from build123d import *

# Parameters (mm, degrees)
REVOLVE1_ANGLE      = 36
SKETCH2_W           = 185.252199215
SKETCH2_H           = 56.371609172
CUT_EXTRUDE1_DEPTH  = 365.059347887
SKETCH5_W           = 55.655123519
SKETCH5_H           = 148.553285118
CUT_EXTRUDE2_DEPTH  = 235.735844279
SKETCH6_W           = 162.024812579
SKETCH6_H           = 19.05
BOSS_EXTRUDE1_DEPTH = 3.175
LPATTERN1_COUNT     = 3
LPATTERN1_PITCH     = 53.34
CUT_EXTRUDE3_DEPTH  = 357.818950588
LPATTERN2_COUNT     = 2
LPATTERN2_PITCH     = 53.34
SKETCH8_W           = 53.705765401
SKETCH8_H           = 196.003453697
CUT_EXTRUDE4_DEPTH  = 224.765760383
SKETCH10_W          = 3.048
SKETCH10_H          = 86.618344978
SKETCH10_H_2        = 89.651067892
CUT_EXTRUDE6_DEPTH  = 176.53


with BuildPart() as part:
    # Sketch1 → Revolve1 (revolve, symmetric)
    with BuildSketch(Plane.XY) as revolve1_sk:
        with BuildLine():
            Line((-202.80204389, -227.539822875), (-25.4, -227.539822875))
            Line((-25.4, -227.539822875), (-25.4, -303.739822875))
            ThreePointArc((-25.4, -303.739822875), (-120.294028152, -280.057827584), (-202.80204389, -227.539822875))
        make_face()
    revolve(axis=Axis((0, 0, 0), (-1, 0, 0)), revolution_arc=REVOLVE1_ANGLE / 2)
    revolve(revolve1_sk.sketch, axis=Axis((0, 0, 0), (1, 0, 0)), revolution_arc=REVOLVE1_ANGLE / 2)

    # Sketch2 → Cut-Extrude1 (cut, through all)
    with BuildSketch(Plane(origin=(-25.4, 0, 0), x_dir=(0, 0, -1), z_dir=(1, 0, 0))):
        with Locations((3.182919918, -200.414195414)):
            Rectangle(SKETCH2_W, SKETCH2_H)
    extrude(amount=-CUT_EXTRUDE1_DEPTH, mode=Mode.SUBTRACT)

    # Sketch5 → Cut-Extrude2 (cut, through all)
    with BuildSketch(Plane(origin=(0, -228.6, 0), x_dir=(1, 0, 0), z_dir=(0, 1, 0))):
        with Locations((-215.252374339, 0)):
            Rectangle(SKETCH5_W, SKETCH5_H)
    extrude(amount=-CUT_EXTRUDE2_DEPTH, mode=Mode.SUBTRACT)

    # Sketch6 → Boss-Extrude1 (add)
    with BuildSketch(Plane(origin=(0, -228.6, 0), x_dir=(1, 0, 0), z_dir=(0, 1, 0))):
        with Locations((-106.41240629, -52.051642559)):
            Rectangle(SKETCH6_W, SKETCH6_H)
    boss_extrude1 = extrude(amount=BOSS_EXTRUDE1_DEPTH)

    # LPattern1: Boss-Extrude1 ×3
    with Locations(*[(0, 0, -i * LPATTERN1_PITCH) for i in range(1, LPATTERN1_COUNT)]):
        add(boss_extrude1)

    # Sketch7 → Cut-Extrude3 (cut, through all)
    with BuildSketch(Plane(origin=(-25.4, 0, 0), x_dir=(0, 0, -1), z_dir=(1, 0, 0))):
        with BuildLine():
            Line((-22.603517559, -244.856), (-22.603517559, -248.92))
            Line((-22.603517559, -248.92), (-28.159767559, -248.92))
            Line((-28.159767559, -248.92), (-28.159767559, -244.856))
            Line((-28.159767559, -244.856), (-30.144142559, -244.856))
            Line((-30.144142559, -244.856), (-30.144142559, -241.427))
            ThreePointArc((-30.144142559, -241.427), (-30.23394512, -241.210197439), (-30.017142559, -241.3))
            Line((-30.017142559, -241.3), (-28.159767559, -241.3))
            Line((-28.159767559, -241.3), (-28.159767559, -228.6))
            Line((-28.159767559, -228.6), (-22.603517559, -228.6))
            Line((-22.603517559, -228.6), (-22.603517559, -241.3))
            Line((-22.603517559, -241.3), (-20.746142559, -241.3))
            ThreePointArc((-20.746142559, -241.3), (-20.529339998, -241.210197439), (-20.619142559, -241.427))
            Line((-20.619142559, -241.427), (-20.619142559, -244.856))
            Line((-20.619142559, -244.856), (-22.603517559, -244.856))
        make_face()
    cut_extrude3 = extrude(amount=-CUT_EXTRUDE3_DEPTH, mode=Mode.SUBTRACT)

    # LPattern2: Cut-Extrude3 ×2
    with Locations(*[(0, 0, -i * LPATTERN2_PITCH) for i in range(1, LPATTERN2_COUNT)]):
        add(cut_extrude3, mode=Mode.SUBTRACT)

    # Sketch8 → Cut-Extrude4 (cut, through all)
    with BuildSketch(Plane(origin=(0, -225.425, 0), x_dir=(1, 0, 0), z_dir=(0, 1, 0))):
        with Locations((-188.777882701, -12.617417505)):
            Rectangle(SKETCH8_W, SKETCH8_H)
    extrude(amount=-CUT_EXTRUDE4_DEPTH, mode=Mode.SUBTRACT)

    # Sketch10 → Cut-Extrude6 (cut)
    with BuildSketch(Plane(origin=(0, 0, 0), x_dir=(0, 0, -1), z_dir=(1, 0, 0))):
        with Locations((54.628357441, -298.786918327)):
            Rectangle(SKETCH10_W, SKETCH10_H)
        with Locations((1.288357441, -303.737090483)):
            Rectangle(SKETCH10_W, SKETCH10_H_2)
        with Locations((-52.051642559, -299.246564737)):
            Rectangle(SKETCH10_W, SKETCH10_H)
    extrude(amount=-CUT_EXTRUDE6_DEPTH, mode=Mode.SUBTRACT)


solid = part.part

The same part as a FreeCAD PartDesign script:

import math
import FreeCAD as App
import Part
import Sketcher
Q = App.Units.Quantity

doc = App.newDocument("Part")
body = doc.addObject("PartDesign::Body", "Body")

sketch1 = body.newObject("Sketcher::SketchObject", "Sketch")
sketch1.AttachmentSupport = (doc.getObject("XY_Plane"), [""])
sketch1.MapMode = "FlatFace"
sketch1.addGeometry([
    Part.LineSegment(App.Vector(-25, -228, 0), App.Vector(-203, -228, 0)),
    Part.ArcOfCircle(Part.Circle(App.Vector(0, 0, 0), App.Vector(0, 0, 1), 305), math.radians(-132), math.radians(-95)),
    Part.LineSegment(App.Vector(-25, -304, 0), App.Vector(-25, -228, 0)),
], False)
sketch1.addConstraint([
    Sketcher.Constraint("Coincident", 0, 2, 1, 1),
    Sketcher.Constraint("Coincident", 1, 2, 2, 1),
    Sketcher.Constraint("Coincident", 2, 2, 0, 1),
    Sketcher.Constraint("Horizontal", 0),
    Sketcher.Constraint("Vertical", 2),
    Sketcher.Constraint("Coincident", 1, 3, -1, 1),
    Sketcher.Constraint("Radius", 1, Q("12 in")),
    Sketcher.Constraint("DistanceY", 2, 1, 2, 2, Q("3 in")),
    Sketcher.Constraint("DistanceX", 2, 2, -1, 1, Q("1 in")),
])
revolution = body.newObject("PartDesign::Revolution", "Revolution")
revolution.Profile = sketch1
revolution.ReferenceAxis = (sketch1, ["H_Axis"])
revolution.Angle = 18
revolution.Reversed = True

sketch2 = body.newObject("Sketcher::SketchObject", "Sketch001")
sketch2.AttachmentSupport = (doc.getObject("XY_Plane"), [""])
sketch2.MapMode = "FlatFace"
sketch2.addGeometry([
    Part.LineSegment(App.Vector(-25, -228, 0), App.Vector(-203, -228, 0)),
    Part.ArcOfCircle(Part.Circle(App.Vector(0, 0, 0), App.Vector(0, 0, 1), 305), math.radians(-132), math.radians(-95)),
    Part.LineSegment(App.Vector(-25, -304, 0), App.Vector(-25, -228, 0)),
], False)
sketch2.addConstraint([
    Sketcher.Constraint("Coincident", 0, 2, 1, 1),
    Sketcher.Constraint("Coincident", 1, 2, 2, 1),
    Sketcher.Constraint("Coincident", 2, 2, 0, 1),
    Sketcher.Constraint("Horizontal", 0),
    Sketcher.Constraint("Vertical", 2),
    Sketcher.Constraint("Coincident", 1, 3, -1, 1),
    Sketcher.Constraint("Radius", 1, Q("12 in")),
    Sketcher.Constraint("DistanceY", 2, 1, 2, 2, Q("3 in")),
    Sketcher.Constraint("DistanceX", 2, 2, -1, 1, Q("1 in")),
])
revolution2 = body.newObject("PartDesign::Revolution", "Revolution001")
revolution2.Profile = sketch2
revolution2.ReferenceAxis = (sketch2, ["H_Axis"])
revolution2.Angle = 18

sketch3 = body.newObject("Sketcher::SketchObject", "Sketch002")
sketch3.AttachmentSupport = (doc.getObject("YZ_Plane"), [""])
sketch3.MapMode = "FlatFace"
sketch3.AttachmentOffset = App.Placement(App.Vector(0, 0, -1 * 25.4), App.Rotation())
sketch3.addGeometry([
    Part.LineSegment(App.Vector(-172, 89, 0), App.Vector(-229, 89, 0)),
    Part.LineSegment(App.Vector(-229, 89, 0), App.Vector(-229, -96, 0)),
    Part.LineSegment(App.Vector(-229, -96, 0), App.Vector(-172, -96, 0)),
    Part.LineSegment(App.Vector(-172, -96, 0), App.Vector(-172, 89, 0)),
], False)
sketch3.addConstraint([
    Sketcher.Constraint("Coincident", 0, 2, 1, 1),
    Sketcher.Constraint("Coincident", 1, 2, 2, 1),
    Sketcher.Constraint("Coincident", 2, 2, 3, 1),
    Sketcher.Constraint("Coincident", 3, 2, 0, 1),
    Sketcher.Constraint("Horizontal", 0),
    Sketcher.Constraint("Vertical", 1),
    Sketcher.Constraint("Horizontal", 2),
    Sketcher.Constraint("Vertical", 3),
    Sketcher.Constraint("DistanceX", 0, 2, -1, 1, Q("9 in")),
    Sketcher.Constraint("DistanceY", 1, 2, 1, 1, Q("185.252199 mm")),
    Sketcher.Constraint("DistanceX", 0, 2, 0, 1, Q("56.371609 mm")),
    Sketcher.Constraint("DistanceY", -1, 1, 0, 2, Q("89.44318 mm")),
])
pocket1 = body.newObject("PartDesign::Pocket", "Pocket")
pocket1.Profile = sketch3
pocket1.Type = "ThroughAll"

sketch4 = body.newObject("Sketcher::SketchObject", "Sketch003")
sketch4.AttachmentSupport = (doc.getObject("XZ_Plane"), [""])
sketch4.MapMode = "FlatFace"
sketch4.AttachmentOffset = App.Placement(App.Vector(0, 0, 9 * 25.4), App.Rotation())
sketch4.addGeometry([
    Part.LineSegment(App.Vector(-243, -74, 0), App.Vector(-243, 74, 0)),
    Part.LineSegment(App.Vector(-243, 74, 0), App.Vector(-187, 74, 0)),
    Part.LineSegment(App.Vector(-187, 74, 0), App.Vector(-187, -74, 0)),
    Part.LineSegment(App.Vector(-187, -74, 0), App.Vector(-243, -74, 0)),
], False)
sketch4.addConstraint([
    Sketcher.Constraint("Coincident", 0, 2, 1, 1),
    Sketcher.Constraint("Coincident", 1, 2, 2, 1),
    Sketcher.Constraint("Coincident", 2, 2, 3, 1),
    Sketcher.Constraint("Coincident", 3, 2, 0, 1),
    Sketcher.Constraint("Vertical", 0),
    Sketcher.Constraint("Horizontal", 1),
    Sketcher.Constraint("Vertical", 2),
    Sketcher.Constraint("Horizontal", 3),
    Sketcher.Constraint("DistanceX", 1, 1, 1, 2, Q("55.655124 mm")),
    Sketcher.Constraint("DistanceY", 0, 1, 0, 2, Q("148.553285 mm")),
    Sketcher.Constraint("DistanceX", 0, 2, -1, 1, Q("243.079936 mm")),
    Sketcher.Constraint("DistanceY", -1, 1, 0, 2, Q("74.276643 mm")),
])
pocket2 = body.newObject("PartDesign::Pocket", "Pocket001")
pocket2.Profile = sketch4
pocket2.Type = "ThroughAll"
pocket2.Reversed = True

sketch5 = body.newObject("Sketcher::SketchObject", "Sketch004")
sketch5.AttachmentSupport = (doc.getObject("XZ_Plane"), [""])
sketch5.MapMode = "FlatFace"
sketch5.AttachmentOffset = App.Placement(App.Vector(0, 0, 9 * 25.4), App.Rotation())
sketch5.addGeometry([
    Part.LineSegment(App.Vector(-187, 43, 0), App.Vector(-187, 62, 0)),
    Part.LineSegment(App.Vector(-187, 62, 0), App.Vector(-25, 62, 0)),
    Part.LineSegment(App.Vector(-25, 62, 0), App.Vector(-25, 43, 0)),
    Part.LineSegment(App.Vector(-25, 43, 0), App.Vector(-187, 43, 0)),
], False)
sketch5.addConstraint([
    Sketcher.Constraint("Coincident", 0, 2, 1, 1),
    Sketcher.Constraint("Coincident", 1, 2, 2, 1),
    Sketcher.Constraint("Coincident", 2, 2, 3, 1),
    Sketcher.Constraint("Coincident", 3, 2, 0, 1),
    Sketcher.Constraint("Vertical", 0),
    Sketcher.Constraint("Horizontal", 1),
    Sketcher.Constraint("Vertical", 2),
    Sketcher.Constraint("Horizontal", 3),
    Sketcher.Constraint("DistanceX", 1, 2, -1, 1, Q("1 in")),
    Sketcher.Constraint("DistanceY", 0, 1, 0, 2, Q("0.75 in")),
    Sketcher.Constraint("DistanceX", 1, 1, 1, 2, Q("162.024813 mm")),
    Sketcher.Constraint("DistanceY", -1, 1, 0, 2, Q("61.576643 mm")),
])
pad1 = body.newObject("PartDesign::Pad", "Pad")
pad1.Profile = sketch5
pad1.Length = Q("0.125 in")
pad1.Reversed = True
doc.recompute()

linearpattern = body.newObject("PartDesign::LinearPattern", "LinearPattern")
linearpattern.Originals = [pad1]
linearpattern.Direction = (doc.getObject("Z_Axis"), [""])
linearpattern.Mode = "offset"
linearpattern.Offset = Q("2.1 in")
linearpattern.Occurrences = 3
linearpattern.Reversed = True
body.Tip = linearpattern

sketch6 = body.newObject("Sketcher::SketchObject", "Sketch005")
sketch6.AttachmentSupport = (doc.getObject("YZ_Plane"), [""])
sketch6.MapMode = "FlatFace"
sketch6.AttachmentOffset = App.Placement(App.Vector(0, 0, -1 * 25.4), App.Rotation())
sketch6.addGeometry([
    Part.LineSegment(App.Vector(-248.92, 22.6, 0), App.Vector(-244.86, 22.6, 0)),
    Part.LineSegment(App.Vector(-244.86, 22.6, 0), App.Vector(-244.86, 20.62, 0)),
    Part.LineSegment(App.Vector(-244.86, 20.62, 0), App.Vector(-241.43, 20.62, 0)),
    Part.ArcOfCircle(Part.Circle(App.Vector(-241.3, 20.62, 0), App.Vector(0, 0, 1), 0.13), math.radians(180), math.radians(450)),
    Part.LineSegment(App.Vector(-241.3, 20.75, 0), App.Vector(-241.3, 22.6, 0)),
    Part.LineSegment(App.Vector(-241.3, 22.6, 0), App.Vector(-228.6, 22.6, 0)),
    Part.LineSegment(App.Vector(-228.6, 22.6, 0), App.Vector(-228.6, 28.16, 0)),
    Part.LineSegment(App.Vector(-228.6, 28.16, 0), App.Vector(-241.3, 28.16, 0)),
    Part.LineSegment(App.Vector(-241.3, 28.16, 0), App.Vector(-241.3, 30.02, 0)),
    Part.ArcOfCircle(Part.Circle(App.Vector(-241.3, 30.14, 0), App.Vector(0, 0, 1), 0.13), math.radians(-90), math.radians(180)),
    Part.LineSegment(App.Vector(-241.43, 30.14, 0), App.Vector(-244.86, 30.14, 0)),
    Part.LineSegment(App.Vector(-244.86, 30.14, 0), App.Vector(-244.86, 28.16, 0)),
    Part.LineSegment(App.Vector(-244.86, 28.16, 0), App.Vector(-248.92, 28.16, 0)),
    Part.LineSegment(App.Vector(-248.92, 28.16, 0), App.Vector(-248.92, 22.6, 0)),
], False)
sketch6.addConstraint([
    Sketcher.Constraint("Coincident", 0, 2, 1, 1),
    Sketcher.Constraint("Coincident", 1, 2, 2, 1),
    Sketcher.Constraint("Coincident", 2, 2, 3, 1),
    Sketcher.Constraint("Coincident", 3, 2, 4, 1),
    Sketcher.Constraint("Coincident", 4, 2, 5, 1),
    Sketcher.Constraint("Coincident", 5, 2, 6, 1),
    Sketcher.Constraint("Coincident", 6, 2, 7, 1),
    Sketcher.Constraint("Coincident", 7, 2, 8, 1),
    Sketcher.Constraint("Coincident", 8, 2, 9, 1),
    Sketcher.Constraint("Coincident", 9, 2, 10, 1),
    Sketcher.Constraint("Coincident", 10, 2, 11, 1),
    Sketcher.Constraint("Coincident", 11, 2, 12, 1),
    Sketcher.Constraint("Coincident", 12, 2, 13, 1),
    Sketcher.Constraint("Coincident", 13, 2, 0, 1),
    Sketcher.Constraint("Horizontal", 0),
    Sketcher.Constraint("Vertical", 1),
    Sketcher.Constraint("Horizontal", 2),
    Sketcher.Constraint("Vertical", 4),
    Sketcher.Constraint("Horizontal", 5),
    Sketcher.Constraint("Vertical", 6),
    Sketcher.Constraint("Horizontal", 7),
    Sketcher.Constraint("Vertical", 8),
    Sketcher.Constraint("Horizontal", 10),
    Sketcher.Constraint("Vertical", 11),
    Sketcher.Constraint("Horizontal", 12),
    Sketcher.Constraint("Vertical", 13),
    Sketcher.Constraint("Equal", 3, 9),
    Sketcher.Constraint("Horizontal", 3, 3, 1, 2),
    Sketcher.Constraint("Horizontal", 0, 2, 4, 2),
    Sketcher.Constraint("Horizontal", 7, 2, 11, 2),
    Sketcher.Constraint("Vertical", 3, 3, 9, 3),
    Sketcher.Constraint("Vertical", 9, 3, 3, 2),
    Sketcher.Constraint("Vertical", 4, 2, 7, 2),
    Sketcher.Constraint("Vertical", 1, 2, 10, 2),
    Sketcher.Constraint("Equal", 4, 8),
    Sketcher.Constraint("Equal", 1, 11),
    Sketcher.Constraint("DistanceX", 5, 1, 5, 2, Q("0.5 in")),
    Sketcher.Constraint("DistanceX", 5, 2, -1, 1, Q("9 in")),
    Sketcher.Constraint("Radius", 3, Q("0.005 in")),
    Sketcher.Constraint("DistanceX", 0, 1, 0, 2, Q("0.16 in")),
    Sketcher.Constraint("DistanceX", 12, 2, -1, 1, Q("9.8 in")),
    Sketcher.Constraint("DistanceY", 1, 2, 1, 1, Q("0.078125 in")),
    Sketcher.Constraint("DistanceY", 6, 1, 6, 2, Q("0.21875 in")),
    Sketcher.Constraint("DistanceY", -1, 1, 3, 3, Q("20.619143 mm")),
])
pocket3 = body.newObject("PartDesign::Pocket", "Pocket002")
pocket3.Profile = sketch6
pocket3.Type = "ThroughAll"
doc.recompute()

linearpattern2 = body.newObject("PartDesign::LinearPattern", "LinearPattern001")
linearpattern2.Originals = [pocket3]
linearpattern2.Direction = (doc.getObject("Z_Axis"), [""])
linearpattern2.Mode = "offset"
linearpattern2.Offset = Q("2.1 in")
linearpattern2.Occurrences = 2
linearpattern2.Reversed = True
body.Tip = linearpattern2

sketch7 = body.newObject("Sketcher::SketchObject", "Sketch006")
sketch7.AttachmentSupport = (doc.getObject("XZ_Plane"), [""])
sketch7.MapMode = "FlatFace"
sketch7.AttachmentOffset = App.Placement(App.Vector(0, 0, 8.875 * 25.4), App.Rotation())
sketch7.addGeometry([
    Part.LineSegment(App.Vector(-216, -85, 0), App.Vector(-216, 111, 0)),
    Part.LineSegment(App.Vector(-216, 111, 0), App.Vector(-162, 111, 0)),
    Part.LineSegment(App.Vector(-162, 111, 0), App.Vector(-162, -85, 0)),
    Part.LineSegment(App.Vector(-162, -85, 0), App.Vector(-216, -85, 0)),
], False)
sketch7.addConstraint([
    Sketcher.Constraint("Coincident", 0, 2, 1, 1),
    Sketcher.Constraint("Coincident", 1, 2, 2, 1),
    Sketcher.Constraint("Coincident", 2, 2, 3, 1),
    Sketcher.Constraint("Coincident", 3, 2, 0, 1),
    Sketcher.Constraint("Vertical", 0),
    Sketcher.Constraint("Horizontal", 1),
    Sketcher.Constraint("Vertical", 2),
    Sketcher.Constraint("Horizontal", 3),
    Sketcher.Constraint("DistanceX", 1, 2, -1, 1, Q("6.375 in")),
    Sketcher.Constraint("DistanceX", 1, 1, 1, 2, Q("53.705765 mm")),
    Sketcher.Constraint("DistanceY", 0, 1, 0, 2, Q("196.003454 mm")),
    Sketcher.Constraint("DistanceY", 2, 2, -1, 1, Q("85.384309 mm")),
])
pocket4 = body.newObject("PartDesign::Pocket", "Pocket003")
pocket4.Profile = sketch7
pocket4.Type = "ThroughAll"
pocket4.Reversed = True

sketch8 = body.newObject("Sketcher::SketchObject", "Sketch007")
sketch8.AttachmentSupport = (doc.getObject("YZ_Plane"), [""])
sketch8.MapMode = "FlatFace"
sketch8.addGeometry([
    Part.LineSegment(App.Vector(-255.5, -53.1, 0), App.Vector(-342.1, -53.1, 0)),
    Part.LineSegment(App.Vector(-342.1, -53.1, 0), App.Vector(-342.1, -56.2, 0)),
    Part.LineSegment(App.Vector(-342.1, -56.2, 0), App.Vector(-255.5, -56.2, 0)),
    Part.LineSegment(App.Vector(-255.5, -56.2, 0), App.Vector(-255.5, -53.1, 0)),
    Part.LineSegment(App.Vector(-258.9, 0.2, 0), App.Vector(-348.6, 0.2, 0)),
    Part.LineSegment(App.Vector(-348.6, 0.2, 0), App.Vector(-348.6, -2.8, 0)),
    Part.LineSegment(App.Vector(-348.6, -2.8, 0), App.Vector(-258.9, -2.8, 0)),
    Part.LineSegment(App.Vector(-258.9, -2.8, 0), App.Vector(-258.9, 0.2, 0)),
    Part.LineSegment(App.Vector(-255.9, 53.6, 0), App.Vector(-342.6, 53.6, 0)),
    Part.LineSegment(App.Vector(-342.6, 53.6, 0), App.Vector(-342.6, 50.5, 0)),
    Part.LineSegment(App.Vector(-342.6, 50.5, 0), App.Vector(-255.9, 50.5, 0)),
    Part.LineSegment(App.Vector(-255.9, 50.5, 0), App.Vector(-255.9, 53.6, 0)),
], False)
sketch8.addConstraint([
    Sketcher.Constraint("Coincident", 0, 2, 1, 1),
    Sketcher.Constraint("Coincident", 1, 2, 2, 1),
    Sketcher.Constraint("Coincident", 2, 2, 3, 1),
    Sketcher.Constraint("Coincident", 3, 2, 0, 1),
    Sketcher.Constraint("Coincident", 4, 2, 5, 1),
    Sketcher.Constraint("Coincident", 5, 2, 6, 1),
    Sketcher.Constraint("Coincident", 6, 2, 7, 1),
    Sketcher.Constraint("Coincident", 7, 2, 4, 1),
    Sketcher.Constraint("Coincident", 8, 2, 9, 1),
    Sketcher.Constraint("Coincident", 9, 2, 10, 1),
    Sketcher.Constraint("Coincident", 10, 2, 11, 1),
    Sketcher.Constraint("Coincident", 11, 2, 8, 1),
    Sketcher.Constraint("Horizontal", 0),
    Sketcher.Constraint("Vertical", 1),
    Sketcher.Constraint("Horizontal", 2),
    Sketcher.Constraint("Vertical", 3),
    Sketcher.Constraint("Horizontal", 4),
    Sketcher.Constraint("Vertical", 5),
    Sketcher.Constraint("Horizontal", 6),
    Sketcher.Constraint("Vertical", 7),
    Sketcher.Constraint("Horizontal", 8),
    Sketcher.Constraint("Vertical", 9),
    Sketcher.Constraint("Horizontal", 10),
    Sketcher.Constraint("Vertical", 11),
    Sketcher.Constraint("Equal", 2, 8),
    Sketcher.Constraint("Equal", 3, 5),
    Sketcher.Constraint("Equal", 7, 9),
    Sketcher.Constraint("DistanceY", 1, 2, 1, 1, Q("0.12 in")),
    Sketcher.Constraint("DistanceY", 0, 2, 4, 2, Q("2.1 in")),
    Sketcher.Constraint("DistanceY", 4, 2, 8, 2, Q("2.1 in")),
    Sketcher.Constraint("DistanceX", 0, 2, 0, 1, Q("86.618345 mm")),
    Sketcher.Constraint("DistanceX", 4, 2, 4, 1, Q("89.651068 mm")),
    Sketcher.Constraint("DistanceX", 0, 2, -1, 1, Q("342.096091 mm")),
    Sketcher.Constraint("DistanceX", 4, 2, 3, 2, Q("93.084879 mm")),
    Sketcher.Constraint("DistanceX", 8, 2, 7, 2, Q("83.644181 mm")),
    Sketcher.Constraint("DistanceY", 0, 2, -1, 1, Q("53.104357 mm")),
])
pocket5 = body.newObject("PartDesign::Pocket", "Pocket004")
pocket5.Profile = sketch8
pocket5.Length = Q("6.95 in")

doc.recompute()
